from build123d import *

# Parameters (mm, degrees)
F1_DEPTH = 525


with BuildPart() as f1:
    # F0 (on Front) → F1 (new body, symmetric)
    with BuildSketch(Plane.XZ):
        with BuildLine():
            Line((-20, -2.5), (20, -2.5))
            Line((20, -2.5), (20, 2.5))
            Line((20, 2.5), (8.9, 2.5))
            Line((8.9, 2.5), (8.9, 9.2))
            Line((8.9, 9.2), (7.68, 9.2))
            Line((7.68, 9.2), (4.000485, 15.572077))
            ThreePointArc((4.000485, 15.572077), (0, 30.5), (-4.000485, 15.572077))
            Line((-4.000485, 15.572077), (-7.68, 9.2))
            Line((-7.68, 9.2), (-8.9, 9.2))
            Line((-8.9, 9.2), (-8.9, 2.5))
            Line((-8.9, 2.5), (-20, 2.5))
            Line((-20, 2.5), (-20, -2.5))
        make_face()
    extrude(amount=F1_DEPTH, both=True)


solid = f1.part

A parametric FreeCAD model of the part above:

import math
import FreeCAD as App
import Part
import Sketcher

doc = App.newDocument("Part")
body = doc.addObject("PartDesign::Body", "Body")

# Sketch on XZ plane
sketch1 = doc.addObject("Sketcher::SketchObject", "Sketch")
body.addObject(sketch1)
sketch1.AttachmentSupport = (doc.XZ_Plane, [""])
sketch1.MapMode = "FlatFace"
sketch1.addGeometry([
    Part.LineSegment(App.Vector(-20, -2.5, 0), App.Vector(20, -2.5, 0)),  # 0
    Part.LineSegment(App.Vector(20, -2.5, 0), App.Vector(20, 2.5, 0)),  # 1
    Part.LineSegment(App.Vector(20, 2.5, 0), App.Vector(8.9, 2.5, 0)),  # 2
    Part.LineSegment(App.Vector(8.9, 2.5, 0), App.Vector(8.9, 9.2, 0)),  # 3
    Part.LineSegment(App.Vector(8.9, 9.2, 0), App.Vector(7.68, 9.2, 0)),  # 4
    Part.LineSegment(App.Vector(7.68, 9.2, 0), App.Vector(4.000485, 15.572077, 0)),  # 5
    Part.ArcOfCircle(Part.Circle(App.Vector(0, 22.5, 0), App.Vector(0, 0, 1), 8), math.radians(-59.995989), math.radians(239.995989)),  # 6
    Part.LineSegment(App.Vector(-4.000485, 15.572077, 0), App.Vector(-7.68, 9.2, 0)),  # 7
    Part.LineSegment(App.Vector(-7.68, 9.2, 0), App.Vector(-8.9, 9.2, 0)),  # 8
    Part.LineSegment(App.Vector(-8.9, 9.2, 0), App.Vector(-8.9, 2.5, 0)),  # 9
    Part.LineSegment(App.Vector(-8.9, 2.5, 0), App.Vector(-20, 2.5, 0)),  # 10
    Part.LineSegment(App.Vector(-20, 2.5, 0), App.Vector(-20, -2.5, 0)),  # 11
], False)
sketch1.addConstraint([
    Sketcher.Constraint("Coincident", 0, 2, 1, 1),
    Sketcher.Constraint("Coincident", 1, 2, 2, 1),
    Sketcher.Constraint("Coincident", 2, 2, 3, 1),
    Sketcher.Constraint("Coincident", 3, 2, 4, 1),
    Sketcher.Constraint("Coincident", 4, 2, 5, 1),
    Sketcher.Constraint("Coincident", 5, 2, 6, 1),
    Sketcher.Constraint("Coincident", 6, 2, 7, 1),
    Sketcher.Constraint("Coincident", 7, 2, 8, 1),
    Sketcher.Constraint("Coincident", 8, 2, 9, 1),
    Sketcher.Constraint("Coincident", 9, 2, 10, 1),
    Sketcher.Constraint("Coincident", 10, 2, 11, 1),
    Sketcher.Constraint("Coincident", 11, 2, 0, 1),
    Sketcher.Constraint("Horizontal", 0),
    Sketcher.Constraint("Vertical", 1),
    Sketcher.Constraint("Horizontal", 2),
    Sketcher.Constraint("Vertical", 3),
    Sketcher.Constraint("Horizontal", 4),
    Sketcher.Constraint("Horizontal", 8),
    Sketcher.Constraint("Vertical", 9),
    Sketcher.Constraint("Horizontal", 10),
    Sketcher.Constraint("Vertical", 11),
    Sketcher.Constraint("Symmetric", 0, 2, 10, 2, -1, 1),
    Sketcher.Constraint("Symmetric", 5, 2, 6, 2, -2),
    Sketcher.Constraint("Symmetric", 4, 2, 7, 2, -2),
    Sketcher.Constraint("Symmetric", 2, 2, 9, 2, -2),
    Sketcher.Constraint("Radius", 6, 8.0),
    Sketcher.Constraint("DistanceX", 0, 1, 0, 2, 40.0),
    Sketcher.Constraint("DistanceY", 1, 1, 1, 2, 5.0),
    Sketcher.Constraint("DistanceX", 2, 2, 2, 1, 11.1),
    Sketcher.Constraint("DistanceY", 3, 1, 3, 2, 6.7),
    Sketcher.Constraint("DistanceY", 0, 2, 6, 3, 25.0),
    Sketcher.Constraint("DistanceX", 4, 2, 4, 1, 1.22),
    Sketcher.Constraint("DistanceX", 6, 2, 5, 2, 8.00097),
])
pad1 = doc.addObject("PartDesign::Pad", "Pad")
body.addObject(pad1)
pad1.Profile = sketch1
pad1.Length = 1050
pad1.Midplane = True

doc.recompute()
